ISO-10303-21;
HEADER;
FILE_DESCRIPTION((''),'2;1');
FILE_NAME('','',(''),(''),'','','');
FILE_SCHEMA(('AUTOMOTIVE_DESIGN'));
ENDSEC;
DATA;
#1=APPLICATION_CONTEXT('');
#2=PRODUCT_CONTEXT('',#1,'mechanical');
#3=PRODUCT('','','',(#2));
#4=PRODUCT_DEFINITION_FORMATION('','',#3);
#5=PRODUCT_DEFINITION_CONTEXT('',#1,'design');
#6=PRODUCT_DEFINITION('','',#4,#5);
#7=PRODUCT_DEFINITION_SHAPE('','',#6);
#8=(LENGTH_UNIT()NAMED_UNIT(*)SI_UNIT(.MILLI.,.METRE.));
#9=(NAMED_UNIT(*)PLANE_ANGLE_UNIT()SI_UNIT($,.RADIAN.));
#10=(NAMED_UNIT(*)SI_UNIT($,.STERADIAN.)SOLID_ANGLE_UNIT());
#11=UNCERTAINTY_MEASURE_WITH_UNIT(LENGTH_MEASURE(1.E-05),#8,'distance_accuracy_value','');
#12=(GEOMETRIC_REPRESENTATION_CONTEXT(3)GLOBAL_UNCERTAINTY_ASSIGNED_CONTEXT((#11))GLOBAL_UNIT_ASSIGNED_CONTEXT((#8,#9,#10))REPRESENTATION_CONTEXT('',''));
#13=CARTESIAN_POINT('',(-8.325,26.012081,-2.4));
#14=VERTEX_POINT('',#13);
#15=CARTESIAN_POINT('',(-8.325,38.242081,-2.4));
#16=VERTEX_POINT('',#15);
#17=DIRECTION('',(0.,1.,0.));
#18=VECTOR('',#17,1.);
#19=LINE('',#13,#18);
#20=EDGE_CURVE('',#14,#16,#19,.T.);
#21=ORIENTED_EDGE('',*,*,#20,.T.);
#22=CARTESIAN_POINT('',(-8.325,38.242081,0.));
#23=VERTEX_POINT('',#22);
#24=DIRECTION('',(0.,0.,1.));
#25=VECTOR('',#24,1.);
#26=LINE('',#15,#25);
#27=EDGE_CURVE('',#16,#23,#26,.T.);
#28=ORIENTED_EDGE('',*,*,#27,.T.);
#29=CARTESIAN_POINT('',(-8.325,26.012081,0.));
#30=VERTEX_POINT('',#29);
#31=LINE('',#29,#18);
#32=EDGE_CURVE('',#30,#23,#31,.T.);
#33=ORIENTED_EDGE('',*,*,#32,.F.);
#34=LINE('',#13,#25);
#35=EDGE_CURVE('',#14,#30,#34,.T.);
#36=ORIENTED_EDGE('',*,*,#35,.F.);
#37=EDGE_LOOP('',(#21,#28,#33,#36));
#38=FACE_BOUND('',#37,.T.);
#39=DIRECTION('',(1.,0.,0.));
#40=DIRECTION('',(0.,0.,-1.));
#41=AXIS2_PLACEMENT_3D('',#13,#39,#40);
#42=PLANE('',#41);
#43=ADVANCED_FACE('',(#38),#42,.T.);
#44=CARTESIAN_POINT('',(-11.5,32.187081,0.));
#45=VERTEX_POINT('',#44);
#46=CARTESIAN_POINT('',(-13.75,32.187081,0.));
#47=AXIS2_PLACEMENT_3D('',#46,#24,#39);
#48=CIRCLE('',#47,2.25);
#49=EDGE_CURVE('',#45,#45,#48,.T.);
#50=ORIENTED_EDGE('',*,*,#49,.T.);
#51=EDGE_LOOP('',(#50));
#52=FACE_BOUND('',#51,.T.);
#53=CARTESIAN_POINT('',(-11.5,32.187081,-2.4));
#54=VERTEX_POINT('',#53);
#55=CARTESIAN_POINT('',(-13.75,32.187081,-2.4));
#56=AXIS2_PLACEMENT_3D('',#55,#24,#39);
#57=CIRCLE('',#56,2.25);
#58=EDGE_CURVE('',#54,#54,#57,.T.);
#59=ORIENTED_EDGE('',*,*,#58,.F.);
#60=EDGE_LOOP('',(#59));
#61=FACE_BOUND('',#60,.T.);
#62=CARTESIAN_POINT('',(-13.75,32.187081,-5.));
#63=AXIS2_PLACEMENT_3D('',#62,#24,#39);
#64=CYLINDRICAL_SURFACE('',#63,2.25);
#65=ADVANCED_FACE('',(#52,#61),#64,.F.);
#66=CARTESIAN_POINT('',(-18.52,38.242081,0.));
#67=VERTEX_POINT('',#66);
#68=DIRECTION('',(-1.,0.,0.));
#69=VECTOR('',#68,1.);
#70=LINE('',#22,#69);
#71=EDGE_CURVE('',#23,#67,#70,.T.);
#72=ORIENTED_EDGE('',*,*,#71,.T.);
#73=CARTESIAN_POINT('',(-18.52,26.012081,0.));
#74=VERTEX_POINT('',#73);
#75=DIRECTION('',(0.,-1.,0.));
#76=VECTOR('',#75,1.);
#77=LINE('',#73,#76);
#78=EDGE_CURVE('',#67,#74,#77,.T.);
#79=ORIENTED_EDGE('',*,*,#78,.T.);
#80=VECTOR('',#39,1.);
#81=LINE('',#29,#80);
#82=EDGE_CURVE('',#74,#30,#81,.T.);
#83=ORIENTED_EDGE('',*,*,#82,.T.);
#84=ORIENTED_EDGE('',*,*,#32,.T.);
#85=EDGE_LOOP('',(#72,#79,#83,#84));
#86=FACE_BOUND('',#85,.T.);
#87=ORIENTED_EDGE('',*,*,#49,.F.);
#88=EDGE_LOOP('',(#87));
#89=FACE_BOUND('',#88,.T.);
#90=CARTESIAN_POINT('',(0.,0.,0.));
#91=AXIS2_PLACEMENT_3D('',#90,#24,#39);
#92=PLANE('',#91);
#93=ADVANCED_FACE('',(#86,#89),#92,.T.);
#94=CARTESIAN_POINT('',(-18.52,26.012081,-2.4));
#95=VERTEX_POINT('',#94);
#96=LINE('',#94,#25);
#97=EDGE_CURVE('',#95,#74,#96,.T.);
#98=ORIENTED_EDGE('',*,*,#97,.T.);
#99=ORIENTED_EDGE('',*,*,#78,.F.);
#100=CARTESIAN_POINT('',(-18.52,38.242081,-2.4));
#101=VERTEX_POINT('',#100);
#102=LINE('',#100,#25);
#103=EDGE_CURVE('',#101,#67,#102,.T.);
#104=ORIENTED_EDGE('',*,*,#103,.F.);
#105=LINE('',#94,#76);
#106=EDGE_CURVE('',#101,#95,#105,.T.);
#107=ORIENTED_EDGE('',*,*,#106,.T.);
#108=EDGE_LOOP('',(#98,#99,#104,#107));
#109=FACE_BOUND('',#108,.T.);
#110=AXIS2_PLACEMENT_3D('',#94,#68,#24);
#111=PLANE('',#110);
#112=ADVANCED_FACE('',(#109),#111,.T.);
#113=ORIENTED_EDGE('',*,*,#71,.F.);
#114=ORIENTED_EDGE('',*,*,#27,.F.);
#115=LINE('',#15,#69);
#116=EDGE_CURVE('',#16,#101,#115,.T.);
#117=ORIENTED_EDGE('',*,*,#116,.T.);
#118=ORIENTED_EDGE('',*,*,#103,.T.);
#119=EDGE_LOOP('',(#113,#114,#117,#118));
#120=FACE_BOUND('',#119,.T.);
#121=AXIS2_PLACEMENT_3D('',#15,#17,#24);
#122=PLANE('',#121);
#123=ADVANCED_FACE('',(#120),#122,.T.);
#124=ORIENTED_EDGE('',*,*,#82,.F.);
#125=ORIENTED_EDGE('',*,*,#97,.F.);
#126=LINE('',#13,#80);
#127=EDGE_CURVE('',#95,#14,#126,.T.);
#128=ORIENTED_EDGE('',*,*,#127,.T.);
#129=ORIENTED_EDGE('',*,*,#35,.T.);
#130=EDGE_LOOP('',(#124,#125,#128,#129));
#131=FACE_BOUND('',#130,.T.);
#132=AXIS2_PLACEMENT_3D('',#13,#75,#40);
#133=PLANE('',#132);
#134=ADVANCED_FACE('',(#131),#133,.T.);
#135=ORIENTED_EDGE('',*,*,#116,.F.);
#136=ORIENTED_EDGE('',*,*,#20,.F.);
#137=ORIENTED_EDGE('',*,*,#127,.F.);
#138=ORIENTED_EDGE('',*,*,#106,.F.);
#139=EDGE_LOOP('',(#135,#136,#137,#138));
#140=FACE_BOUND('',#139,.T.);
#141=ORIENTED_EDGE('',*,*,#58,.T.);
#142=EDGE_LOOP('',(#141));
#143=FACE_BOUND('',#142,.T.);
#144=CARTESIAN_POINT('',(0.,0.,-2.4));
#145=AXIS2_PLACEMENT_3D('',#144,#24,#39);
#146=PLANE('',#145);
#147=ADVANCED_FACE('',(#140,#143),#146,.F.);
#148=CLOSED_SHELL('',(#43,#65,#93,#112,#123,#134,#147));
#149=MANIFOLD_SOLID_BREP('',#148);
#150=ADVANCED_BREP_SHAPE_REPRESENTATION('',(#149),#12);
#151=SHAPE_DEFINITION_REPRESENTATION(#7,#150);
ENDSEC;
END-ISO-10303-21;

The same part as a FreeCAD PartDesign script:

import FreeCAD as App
import Part
import Sketcher
from FreeCAD import Vector
Q = App.Units.Quantity

doc = App.newDocument("Part")
body = doc.addObject("PartDesign::Body", "Body")

sketch1 = body.newObject("Sketcher::SketchObject", "Sketch")
sketch1.AttachmentSupport = (doc.getObject("XY_Plane"), [""])
sketch1.MapMode = "FlatFace"
sketch1.addGeometry([
    Part.LineSegment(Vector(-19, 38, 0), Vector(-19, 26, 0)),
    Part.LineSegment(Vector(-19, 26, 0), Vector(-8, 26, 0)),
    Part.LineSegment(Vector(-8, 26, 0), Vector(-8, 38, 0)),
    Part.LineSegment(Vector(-8, 38, 0), Vector(-19, 38, 0)),
], False)
sketch1.addConstraint([
    Sketcher.Constraint("Coincident", 0, 2, 1, 1),
    Sketcher.Constraint("Coincident", 1, 2, 2, 1),
    Sketcher.Constraint("Coincident", 2, 2, 3, 1),
    Sketcher.Constraint("Coincident", 3, 2, 0, 1),
    Sketcher.Constraint("Vertical", 0),
    Sketcher.Constraint("Horizontal", 1),
    Sketcher.Constraint("Vertical", 2),
    Sketcher.Constraint("Horizontal", 3),
    Sketcher.Constraint("DistanceY", 0, 2, 0, 1, Q("12.23 mm")),
    Sketcher.Constraint("DistanceX", 1, 1, 1, 2, Q("10.195 mm")),
    Sketcher.Constraint("DistanceX", 0, 2, -1, 1, Q("18.52 mm")),
    Sketcher.Constraint("DistanceY", -1, 1, 0, 2, Q("26.012081 mm")),
])
pad1 = body.newObject("PartDesign::Pad", "Pad")
pad1.Profile = sketch1
pad1.Length = 2.4
pad1.Reversed = True

sketch2 = body.newObject("Sketcher::SketchObject", "Sketch001")
sketch2.AttachmentSupport = (doc.getObject("XY_Plane"), [""])
sketch2.MapMode = "FlatFace"
sketch2.addGeometry(Part.Circle(Vector(-13.8, 32.2, 0), Vector(0, 0, 1), 2.2), False)
sketch2.addConstraint([
    Sketcher.Constraint("Diameter", 0, Q("4.5 mm")),
    Sketcher.Constraint("DistanceX", 0, 3, -1, 1, Q("13.75 mm")),
    Sketcher.Constraint("DistanceY", -1, 1, 0, 3, Q("32.187081 mm")),
])
pocket1 = body.newObject("PartDesign::Pocket", "Pocket")
pocket1.Profile = sketch2
pocket1.Length = 5

doc.recompute()
